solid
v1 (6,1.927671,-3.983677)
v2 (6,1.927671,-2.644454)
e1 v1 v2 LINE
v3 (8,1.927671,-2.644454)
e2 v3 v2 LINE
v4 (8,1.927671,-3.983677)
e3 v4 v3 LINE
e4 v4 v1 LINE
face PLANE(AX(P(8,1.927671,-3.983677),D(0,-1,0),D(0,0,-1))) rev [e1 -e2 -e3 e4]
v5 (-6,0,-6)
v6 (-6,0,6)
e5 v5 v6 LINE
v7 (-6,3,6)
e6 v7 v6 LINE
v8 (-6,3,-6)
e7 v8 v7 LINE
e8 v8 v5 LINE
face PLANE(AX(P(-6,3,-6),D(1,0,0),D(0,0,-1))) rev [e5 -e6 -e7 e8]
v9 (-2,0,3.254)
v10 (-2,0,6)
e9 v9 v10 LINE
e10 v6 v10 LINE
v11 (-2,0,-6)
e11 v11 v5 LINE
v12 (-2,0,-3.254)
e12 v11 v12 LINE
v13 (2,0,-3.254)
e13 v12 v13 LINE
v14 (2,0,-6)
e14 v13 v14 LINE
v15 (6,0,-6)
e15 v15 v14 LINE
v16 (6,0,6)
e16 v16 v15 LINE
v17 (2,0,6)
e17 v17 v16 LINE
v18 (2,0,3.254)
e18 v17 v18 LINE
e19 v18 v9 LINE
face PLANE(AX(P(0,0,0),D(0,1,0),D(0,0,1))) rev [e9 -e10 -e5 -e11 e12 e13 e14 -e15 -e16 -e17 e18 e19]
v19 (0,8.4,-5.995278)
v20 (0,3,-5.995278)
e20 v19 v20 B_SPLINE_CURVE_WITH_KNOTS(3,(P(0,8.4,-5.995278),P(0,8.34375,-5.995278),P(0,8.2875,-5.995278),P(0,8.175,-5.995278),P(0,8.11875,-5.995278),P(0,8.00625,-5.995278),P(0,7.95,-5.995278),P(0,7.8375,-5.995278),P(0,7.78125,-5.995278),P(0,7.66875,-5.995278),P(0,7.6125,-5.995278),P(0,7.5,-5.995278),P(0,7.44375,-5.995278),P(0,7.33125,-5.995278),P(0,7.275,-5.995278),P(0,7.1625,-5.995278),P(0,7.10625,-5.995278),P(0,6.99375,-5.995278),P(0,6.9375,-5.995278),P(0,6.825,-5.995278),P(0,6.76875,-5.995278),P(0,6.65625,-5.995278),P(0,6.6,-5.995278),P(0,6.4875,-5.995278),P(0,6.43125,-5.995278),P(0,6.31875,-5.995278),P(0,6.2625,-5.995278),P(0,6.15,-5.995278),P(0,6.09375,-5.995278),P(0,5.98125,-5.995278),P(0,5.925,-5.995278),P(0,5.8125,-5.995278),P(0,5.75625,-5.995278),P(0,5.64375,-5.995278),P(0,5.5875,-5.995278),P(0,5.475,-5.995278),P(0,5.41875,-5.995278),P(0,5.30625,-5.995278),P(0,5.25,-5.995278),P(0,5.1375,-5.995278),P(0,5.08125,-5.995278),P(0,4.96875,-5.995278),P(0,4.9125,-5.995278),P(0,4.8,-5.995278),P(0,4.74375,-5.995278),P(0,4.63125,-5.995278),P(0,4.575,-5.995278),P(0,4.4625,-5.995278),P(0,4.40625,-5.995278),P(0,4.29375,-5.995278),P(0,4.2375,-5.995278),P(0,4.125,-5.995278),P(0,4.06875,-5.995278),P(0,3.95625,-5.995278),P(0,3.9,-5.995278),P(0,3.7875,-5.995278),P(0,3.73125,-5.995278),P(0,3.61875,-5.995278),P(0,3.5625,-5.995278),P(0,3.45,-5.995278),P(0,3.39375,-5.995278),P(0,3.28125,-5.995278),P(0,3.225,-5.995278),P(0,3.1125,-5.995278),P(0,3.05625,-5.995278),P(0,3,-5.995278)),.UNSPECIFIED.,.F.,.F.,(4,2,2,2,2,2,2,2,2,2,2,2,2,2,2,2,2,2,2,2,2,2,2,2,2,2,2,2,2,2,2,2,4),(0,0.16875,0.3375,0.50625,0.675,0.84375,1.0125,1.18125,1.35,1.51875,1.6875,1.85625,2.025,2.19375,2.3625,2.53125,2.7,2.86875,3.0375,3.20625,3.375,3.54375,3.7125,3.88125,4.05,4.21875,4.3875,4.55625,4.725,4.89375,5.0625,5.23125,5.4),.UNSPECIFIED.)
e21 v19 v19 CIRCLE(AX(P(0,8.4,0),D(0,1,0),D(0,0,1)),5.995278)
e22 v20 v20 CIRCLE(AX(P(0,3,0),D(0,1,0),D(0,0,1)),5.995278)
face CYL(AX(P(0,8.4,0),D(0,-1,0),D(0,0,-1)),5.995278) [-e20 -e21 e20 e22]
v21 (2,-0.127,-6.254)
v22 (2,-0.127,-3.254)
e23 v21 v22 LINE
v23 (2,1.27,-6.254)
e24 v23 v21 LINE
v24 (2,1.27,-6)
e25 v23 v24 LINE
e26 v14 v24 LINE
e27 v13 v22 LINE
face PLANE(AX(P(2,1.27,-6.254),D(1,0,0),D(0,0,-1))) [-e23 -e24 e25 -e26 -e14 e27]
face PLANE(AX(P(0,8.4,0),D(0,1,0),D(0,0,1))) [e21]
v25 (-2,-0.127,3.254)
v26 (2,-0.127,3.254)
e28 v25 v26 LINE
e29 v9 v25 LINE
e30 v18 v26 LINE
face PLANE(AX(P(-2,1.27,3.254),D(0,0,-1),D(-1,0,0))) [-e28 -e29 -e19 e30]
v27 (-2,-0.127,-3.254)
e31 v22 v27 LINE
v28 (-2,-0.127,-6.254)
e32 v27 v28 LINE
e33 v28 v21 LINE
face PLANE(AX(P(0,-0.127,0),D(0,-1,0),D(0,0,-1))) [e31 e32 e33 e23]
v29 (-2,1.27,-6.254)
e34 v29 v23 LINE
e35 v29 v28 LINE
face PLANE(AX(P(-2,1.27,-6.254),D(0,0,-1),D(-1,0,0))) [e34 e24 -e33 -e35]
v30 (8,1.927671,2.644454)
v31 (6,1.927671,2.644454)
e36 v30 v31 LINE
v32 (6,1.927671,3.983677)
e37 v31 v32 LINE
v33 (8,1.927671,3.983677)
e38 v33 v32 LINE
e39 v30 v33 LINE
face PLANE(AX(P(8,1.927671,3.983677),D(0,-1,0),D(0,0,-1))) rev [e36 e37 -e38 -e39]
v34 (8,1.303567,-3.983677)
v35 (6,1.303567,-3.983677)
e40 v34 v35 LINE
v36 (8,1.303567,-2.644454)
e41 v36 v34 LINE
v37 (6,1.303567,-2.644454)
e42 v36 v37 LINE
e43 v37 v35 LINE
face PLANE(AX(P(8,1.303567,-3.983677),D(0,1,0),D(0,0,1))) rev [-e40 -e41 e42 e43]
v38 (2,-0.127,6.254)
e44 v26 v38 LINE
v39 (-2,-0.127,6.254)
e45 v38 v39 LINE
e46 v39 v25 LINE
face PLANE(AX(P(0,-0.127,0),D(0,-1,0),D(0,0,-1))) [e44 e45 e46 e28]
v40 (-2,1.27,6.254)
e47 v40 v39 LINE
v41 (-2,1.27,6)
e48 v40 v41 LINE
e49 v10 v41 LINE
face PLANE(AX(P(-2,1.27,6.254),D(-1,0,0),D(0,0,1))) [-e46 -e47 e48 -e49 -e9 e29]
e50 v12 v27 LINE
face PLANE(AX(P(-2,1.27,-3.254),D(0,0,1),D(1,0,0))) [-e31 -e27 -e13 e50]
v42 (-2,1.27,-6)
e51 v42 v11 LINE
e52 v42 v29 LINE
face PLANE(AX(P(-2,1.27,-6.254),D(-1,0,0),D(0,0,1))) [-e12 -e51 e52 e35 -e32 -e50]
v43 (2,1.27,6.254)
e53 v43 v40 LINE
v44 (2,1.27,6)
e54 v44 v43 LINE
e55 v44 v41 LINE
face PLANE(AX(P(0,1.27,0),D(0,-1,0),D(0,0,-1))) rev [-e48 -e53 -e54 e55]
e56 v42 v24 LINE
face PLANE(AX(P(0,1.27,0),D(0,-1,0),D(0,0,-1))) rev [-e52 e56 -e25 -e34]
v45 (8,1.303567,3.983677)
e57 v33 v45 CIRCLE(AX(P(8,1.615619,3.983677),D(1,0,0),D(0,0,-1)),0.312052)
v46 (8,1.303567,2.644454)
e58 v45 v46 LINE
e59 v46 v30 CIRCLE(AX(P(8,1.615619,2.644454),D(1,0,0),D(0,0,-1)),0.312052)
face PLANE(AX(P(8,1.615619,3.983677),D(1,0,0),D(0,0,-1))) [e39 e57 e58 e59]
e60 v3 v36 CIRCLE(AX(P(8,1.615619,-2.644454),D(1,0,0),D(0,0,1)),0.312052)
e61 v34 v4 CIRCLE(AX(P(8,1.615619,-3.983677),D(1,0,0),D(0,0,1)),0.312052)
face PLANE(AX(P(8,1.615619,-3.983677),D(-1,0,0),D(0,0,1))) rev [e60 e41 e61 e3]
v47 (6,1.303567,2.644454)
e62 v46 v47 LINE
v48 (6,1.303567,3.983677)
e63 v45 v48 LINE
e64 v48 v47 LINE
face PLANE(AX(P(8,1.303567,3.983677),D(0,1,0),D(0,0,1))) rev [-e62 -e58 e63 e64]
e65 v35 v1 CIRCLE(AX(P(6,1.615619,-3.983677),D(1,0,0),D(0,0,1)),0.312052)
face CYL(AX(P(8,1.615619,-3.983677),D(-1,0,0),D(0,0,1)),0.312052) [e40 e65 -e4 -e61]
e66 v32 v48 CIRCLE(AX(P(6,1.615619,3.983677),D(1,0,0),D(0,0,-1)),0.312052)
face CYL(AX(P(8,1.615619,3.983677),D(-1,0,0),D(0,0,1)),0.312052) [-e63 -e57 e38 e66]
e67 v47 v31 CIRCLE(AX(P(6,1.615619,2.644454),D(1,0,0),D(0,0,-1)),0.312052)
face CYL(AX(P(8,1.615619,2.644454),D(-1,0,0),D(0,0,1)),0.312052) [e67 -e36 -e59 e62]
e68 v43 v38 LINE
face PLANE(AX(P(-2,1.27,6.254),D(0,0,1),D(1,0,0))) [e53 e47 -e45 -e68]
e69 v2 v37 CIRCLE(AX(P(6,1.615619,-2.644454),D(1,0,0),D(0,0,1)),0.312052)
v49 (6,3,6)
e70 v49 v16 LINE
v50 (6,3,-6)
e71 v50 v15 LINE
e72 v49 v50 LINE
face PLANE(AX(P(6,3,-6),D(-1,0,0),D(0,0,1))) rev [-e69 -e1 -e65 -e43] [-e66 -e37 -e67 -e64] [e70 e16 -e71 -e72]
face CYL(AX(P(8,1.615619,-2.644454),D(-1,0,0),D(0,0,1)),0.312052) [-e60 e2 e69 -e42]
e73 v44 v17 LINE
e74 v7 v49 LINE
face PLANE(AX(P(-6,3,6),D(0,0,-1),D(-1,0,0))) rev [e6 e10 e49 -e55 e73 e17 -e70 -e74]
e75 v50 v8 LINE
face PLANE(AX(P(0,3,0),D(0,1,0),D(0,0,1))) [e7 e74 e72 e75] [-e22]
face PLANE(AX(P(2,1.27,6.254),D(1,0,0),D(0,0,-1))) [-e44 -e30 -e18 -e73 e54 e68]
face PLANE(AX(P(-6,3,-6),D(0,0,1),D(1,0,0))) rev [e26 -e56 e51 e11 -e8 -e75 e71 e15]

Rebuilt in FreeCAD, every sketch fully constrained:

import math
import FreeCAD as App
import Part
import Sketcher
from FreeCAD import Vector
Q = App.Units.Quantity


def add_polygon(sketch, points):
    """Adds a closed chain of lines whose ends are joined by coincident constraints."""
    first, n = sketch.GeometryCount, len(points)
    for a, b in zip(points, points[1:] + points[:1]):
        sketch.addGeometry(Part.LineSegment(App.Vector(*a, 0), App.Vector(*b, 0)), False)
    for i in range(n):
        sketch.addConstraint(Sketcher.Constraint("Coincident", first + i, 2, first + (i + 1) % n, 1))

doc = App.newDocument("Part")
body = doc.addObject("PartDesign::Body", "Body")

# Sketch on XZ plane
sketch1 = doc.addObject("Sketcher::SketchObject", "Sketch")
body.addObject(sketch1)
sketch1.AttachmentSupport = (doc.XZ_Plane, [""])
sketch1.MapMode = "FlatFace"
add_polygon(sketch1, [(-6, -6), (-6, 6), (6, 6), (6, -6)])  # lines 0-3
sketch1.addConstraint([
    Sketcher.Constraint("Vertical", 0),
    Sketcher.Constraint("Horizontal", 1),
    Sketcher.Constraint("Vertical", 2),
    Sketcher.Constraint("Horizontal", 3),
    Sketcher.Constraint("Symmetric", 0, 2, 2, 2, -1, 1),
    Sketcher.Constraint("Equal", 3, 0),
    Sketcher.Constraint("DistanceX", 1, 1, 1, 2, Q("12 mm")),
])
pad1 = doc.addObject("PartDesign::Pad", "Pad")
body.addObject(pad1)
pad1.Profile = sketch1
pad1.Length = 3
pad1.Reversed = True

# Sketch on XZ plane
sketch2 = doc.addObject("Sketcher::SketchObject", "Sketch001")
body.addObject(sketch2)
sketch2.AttachmentSupport = (doc.XZ_Plane, [""])
sketch2.MapMode = "FlatFace"
sketch2.AttachmentOffset = App.Placement(Vector(0, 0, -3), App.Rotation())
sketch2.addGeometry(Part.Circle(Vector(0, 0, 0), Vector(0, 0, 1), 5.995278), False)
sketch2.addConstraint([
    Sketcher.Constraint("Coincident", 0, 3, -1, 1),
    Sketcher.Constraint("Diameter", 0, Q("11.990555 mm")),
])
pad2 = doc.addObject("PartDesign::Pad", "Pad001")
body.addObject(pad2)
pad2.Profile = sketch2
pad2.Length = 5.4
pad2.Reversed = True

# Sketch on YZ plane
sketch3 = doc.addObject("Sketcher::SketchObject", "Sketch002")
body.addObject(sketch3)
sketch3.AttachmentSupport = (doc.YZ_Plane, [""])
sketch3.MapMode = "FlatFace"
sketch3.AttachmentOffset = App.Placement(Vector(0, 0, 6), App.Rotation())
sketch3.addGeometry([
    Part.LineSegment(Vector(1.927671, 2.644454, 0), Vector(1.927671, 3.983677, 0)),  # 0
    Part.ArcOfCircle(Part.Circle(Vector(1.615619, 3.983677, 0), Vector(0, 0, 1), 0.312052), math.radians(0), math.radians(180)),  # 1
    Part.LineSegment(Vector(1.303567, 3.983677, 0), Vector(1.303567, 2.644454, 0)),  # 2
    Part.ArcOfCircle(Part.Circle(Vector(1.615619, 2.644454, 0), Vector(0, 0, 1), 0.312052), math.radians(180), math.radians(360)),  # 3
    Part.LineSegment(Vector(1.927671, -3.983677, 0), Vector(1.927671, -2.644454, 0)),  # 4
    Part.ArcOfCircle(Part.Circle(Vector(1.615619, -2.644454, 0), Vector(0, 0, 1), 0.312052), math.radians(0), math.radians(180)),  # 5
    Part.LineSegment(Vector(1.303567, -2.644454, 0), Vector(1.303567, -3.983677, 0)),  # 6
    Part.ArcOfCircle(Part.Circle(Vector(1.615619, -3.983677, 0), Vector(0, 0, 1), 0.312052), math.radians(180), math.radians(360)),  # 7
], False)
sketch3.addConstraint([
    Sketcher.Constraint("Tangent", 0, 2, 1, 1),
    Sketcher.Constraint("Tangent", 1, 2, 2, 1),
    Sketcher.Constraint("Tangent", 2, 2, 3, 1),
    Sketcher.Constraint("Tangent", 3, 2, 0, 1),
    Sketcher.Constraint("Tangent", 4, 2, 5, 1),
    Sketcher.Constraint("Tangent", 5, 2, 6, 1),
    Sketcher.Constraint("Tangent", 6, 2, 7, 1),
    Sketcher.Constraint("Tangent", 7, 2, 4, 1),
    Sketcher.Constraint("Vertical", 0),
    Sketcher.Constraint("Vertical", 2),
    Sketcher.Constraint("Vertical", 4),
    Sketcher.Constraint("Vertical", 6),
    Sketcher.Constraint("Equal", 3, 5),
    Sketcher.Constraint("Symmetric", 3, 3, 5, 3, -1),
    Sketcher.Constraint("Equal", 2, 4),
    Sketcher.Constraint("Radius", 1, Q("0.312052 mm")),
    Sketcher.Constraint("DistanceY", 0, 1, 0, 2, Q("1.339223 mm")),
    Sketcher.Constraint("DistanceX", -1, 1, 1, 3, Q("1.615619 mm")),
    Sketcher.Constraint("DistanceY", 5, 3, 3, 3, Q("5.288909 mm")),
])
pad3 = doc.addObject("PartDesign::Pad", "Pad002")
body.addObject(pad3)
pad3.Profile = sketch3
pad3.Length = 2

# Sketch on XZ plane
sketch4 = doc.addObject("Sketcher::SketchObject", "Sketch003")
body.addObject(sketch4)
sketch4.AttachmentSupport = (doc.XZ_Plane, [""])
sketch4.MapMode = "FlatFace"
add_polygon(sketch4, [(-2, 6.254), (-2, 3.254), (2, 3.254), (2, 6.254)])  # lines 0-3
add_polygon(sketch4, [(-2, -3.254), (-2, -6.254), (2, -6.254), (2, -3.254)])  # lines 4-7
sketch4.addConstraint([
    Sketcher.Constraint("Vertical", 0),
    Sketcher.Constraint("Horizontal", 1),
    Sketcher.Constraint("Vertical", 2),
    Sketcher.Constraint("Horizontal", 3),
    Sketcher.Constraint("Vertical", 4),
    Sketcher.Constraint("Horizontal", 5),
    Sketcher.Constraint("Vertical", 6),
    Sketcher.Constraint("Horizontal", 7),
    Sketcher.Constraint("Symmetric", 2, 2, 4, 2, -1, 1),
    Sketcher.Constraint("Symmetric", 0, 2, 6, 2, -1, 1),
    Sketcher.Constraint("Vertical", 3, 2, 4, 2),
    Sketcher.Constraint("DistanceX", 1, 1, 1, 2, Q("4 mm")),
    Sketcher.Constraint("DistanceY", 0, 2, 0, 1, Q("3 mm")),
    Sketcher.Constraint("DistanceY", -1, 1, 0, 2, Q("3.254 mm")),
])
pad4 = doc.addObject("PartDesign::Pad", "Pad003")
body.addObject(pad4)
pad4.Profile = sketch4
pad4.Type = "TwoLengths"
pad4.Length = 0.127
pad4.Length2 = 1.27

doc.recompute()
